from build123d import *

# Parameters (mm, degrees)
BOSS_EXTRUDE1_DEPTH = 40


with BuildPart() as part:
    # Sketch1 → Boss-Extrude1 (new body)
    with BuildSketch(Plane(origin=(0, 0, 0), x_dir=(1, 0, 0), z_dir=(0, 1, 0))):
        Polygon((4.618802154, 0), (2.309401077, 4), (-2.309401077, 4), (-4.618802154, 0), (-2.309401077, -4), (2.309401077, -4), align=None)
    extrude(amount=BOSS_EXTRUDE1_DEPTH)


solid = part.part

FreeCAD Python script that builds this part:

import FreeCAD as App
import Part
import Sketcher
Q = App.Units.Quantity


def add_polygon(sketch, points):
    """Adds a closed chain of lines whose ends are joined by coincident constraints."""
    first, n = sketch.GeometryCount, len(points)
    for a, b in zip(points, points[1:] + points[:1]):
        sketch.addGeometry(Part.LineSegment(App.Vector(*a, 0), App.Vector(*b, 0)), False)
    for i in range(n):
        sketch.addConstraint(Sketcher.Constraint("Coincident", first + i, 2, first + (i + 1) % n, 1))

doc = App.newDocument("Part")
params = doc.addObject("Spreadsheet::Sheet", "Params")
for row, (alias, value) in enumerate([
    ("pad1_length", "40 mm"),
], start=1):
    params.set(f"A{row}", alias)
    params.set(f"B{row}", "=" + value)
    params.setAlias(f"B{row}", alias)

body = doc.addObject("PartDesign::Body", "Body")

# Sketch on XZ plane
sketch1 = doc.addObject("Sketcher::SketchObject", "Sketch")
body.addObject(sketch1)
sketch1.AttachmentSupport = (doc.XZ_Plane, [""])
sketch1.MapMode = "FlatFace"
add_polygon(sketch1, [(4.6, 0), (2.3, -4), (-2.3, -4), (-4.6, 0), (-2.3, 4), (2.3, 4)])  # lines 0-5
sketch1.addConstraint([
    Sketcher.Constraint("Horizontal", 1),
    Sketcher.Constraint("Horizontal", 4),
    Sketcher.Constraint("Symmetric", 0, 2, 3, 2, -1, 1),
    Sketcher.Constraint("Symmetric", 2, 2, 5, 2, -1, 1),
    Sketcher.Constraint("PointOnObject", 2, 2, -1),
    Sketcher.Constraint("Parallel", 2, 5),
    Sketcher.Constraint("Vertical", 1, 2, 3, 2),
    Sketcher.Constraint("Angle", 0, Q("-120 deg")),
    Sketcher.Constraint("DistanceY", 0, 2, -1, 1, 4.0),
    Sketcher.Constraint("DistanceX", -1, 1, 0, 2, 2.309401),
])
pad1 = doc.addObject("PartDesign::Pad", "Pad")
body.addObject(pad1)
pad1.Profile = sketch1
pad1.setExpression("Length", "Params.pad1_length")
pad1.Reversed = True

doc.recompute()
